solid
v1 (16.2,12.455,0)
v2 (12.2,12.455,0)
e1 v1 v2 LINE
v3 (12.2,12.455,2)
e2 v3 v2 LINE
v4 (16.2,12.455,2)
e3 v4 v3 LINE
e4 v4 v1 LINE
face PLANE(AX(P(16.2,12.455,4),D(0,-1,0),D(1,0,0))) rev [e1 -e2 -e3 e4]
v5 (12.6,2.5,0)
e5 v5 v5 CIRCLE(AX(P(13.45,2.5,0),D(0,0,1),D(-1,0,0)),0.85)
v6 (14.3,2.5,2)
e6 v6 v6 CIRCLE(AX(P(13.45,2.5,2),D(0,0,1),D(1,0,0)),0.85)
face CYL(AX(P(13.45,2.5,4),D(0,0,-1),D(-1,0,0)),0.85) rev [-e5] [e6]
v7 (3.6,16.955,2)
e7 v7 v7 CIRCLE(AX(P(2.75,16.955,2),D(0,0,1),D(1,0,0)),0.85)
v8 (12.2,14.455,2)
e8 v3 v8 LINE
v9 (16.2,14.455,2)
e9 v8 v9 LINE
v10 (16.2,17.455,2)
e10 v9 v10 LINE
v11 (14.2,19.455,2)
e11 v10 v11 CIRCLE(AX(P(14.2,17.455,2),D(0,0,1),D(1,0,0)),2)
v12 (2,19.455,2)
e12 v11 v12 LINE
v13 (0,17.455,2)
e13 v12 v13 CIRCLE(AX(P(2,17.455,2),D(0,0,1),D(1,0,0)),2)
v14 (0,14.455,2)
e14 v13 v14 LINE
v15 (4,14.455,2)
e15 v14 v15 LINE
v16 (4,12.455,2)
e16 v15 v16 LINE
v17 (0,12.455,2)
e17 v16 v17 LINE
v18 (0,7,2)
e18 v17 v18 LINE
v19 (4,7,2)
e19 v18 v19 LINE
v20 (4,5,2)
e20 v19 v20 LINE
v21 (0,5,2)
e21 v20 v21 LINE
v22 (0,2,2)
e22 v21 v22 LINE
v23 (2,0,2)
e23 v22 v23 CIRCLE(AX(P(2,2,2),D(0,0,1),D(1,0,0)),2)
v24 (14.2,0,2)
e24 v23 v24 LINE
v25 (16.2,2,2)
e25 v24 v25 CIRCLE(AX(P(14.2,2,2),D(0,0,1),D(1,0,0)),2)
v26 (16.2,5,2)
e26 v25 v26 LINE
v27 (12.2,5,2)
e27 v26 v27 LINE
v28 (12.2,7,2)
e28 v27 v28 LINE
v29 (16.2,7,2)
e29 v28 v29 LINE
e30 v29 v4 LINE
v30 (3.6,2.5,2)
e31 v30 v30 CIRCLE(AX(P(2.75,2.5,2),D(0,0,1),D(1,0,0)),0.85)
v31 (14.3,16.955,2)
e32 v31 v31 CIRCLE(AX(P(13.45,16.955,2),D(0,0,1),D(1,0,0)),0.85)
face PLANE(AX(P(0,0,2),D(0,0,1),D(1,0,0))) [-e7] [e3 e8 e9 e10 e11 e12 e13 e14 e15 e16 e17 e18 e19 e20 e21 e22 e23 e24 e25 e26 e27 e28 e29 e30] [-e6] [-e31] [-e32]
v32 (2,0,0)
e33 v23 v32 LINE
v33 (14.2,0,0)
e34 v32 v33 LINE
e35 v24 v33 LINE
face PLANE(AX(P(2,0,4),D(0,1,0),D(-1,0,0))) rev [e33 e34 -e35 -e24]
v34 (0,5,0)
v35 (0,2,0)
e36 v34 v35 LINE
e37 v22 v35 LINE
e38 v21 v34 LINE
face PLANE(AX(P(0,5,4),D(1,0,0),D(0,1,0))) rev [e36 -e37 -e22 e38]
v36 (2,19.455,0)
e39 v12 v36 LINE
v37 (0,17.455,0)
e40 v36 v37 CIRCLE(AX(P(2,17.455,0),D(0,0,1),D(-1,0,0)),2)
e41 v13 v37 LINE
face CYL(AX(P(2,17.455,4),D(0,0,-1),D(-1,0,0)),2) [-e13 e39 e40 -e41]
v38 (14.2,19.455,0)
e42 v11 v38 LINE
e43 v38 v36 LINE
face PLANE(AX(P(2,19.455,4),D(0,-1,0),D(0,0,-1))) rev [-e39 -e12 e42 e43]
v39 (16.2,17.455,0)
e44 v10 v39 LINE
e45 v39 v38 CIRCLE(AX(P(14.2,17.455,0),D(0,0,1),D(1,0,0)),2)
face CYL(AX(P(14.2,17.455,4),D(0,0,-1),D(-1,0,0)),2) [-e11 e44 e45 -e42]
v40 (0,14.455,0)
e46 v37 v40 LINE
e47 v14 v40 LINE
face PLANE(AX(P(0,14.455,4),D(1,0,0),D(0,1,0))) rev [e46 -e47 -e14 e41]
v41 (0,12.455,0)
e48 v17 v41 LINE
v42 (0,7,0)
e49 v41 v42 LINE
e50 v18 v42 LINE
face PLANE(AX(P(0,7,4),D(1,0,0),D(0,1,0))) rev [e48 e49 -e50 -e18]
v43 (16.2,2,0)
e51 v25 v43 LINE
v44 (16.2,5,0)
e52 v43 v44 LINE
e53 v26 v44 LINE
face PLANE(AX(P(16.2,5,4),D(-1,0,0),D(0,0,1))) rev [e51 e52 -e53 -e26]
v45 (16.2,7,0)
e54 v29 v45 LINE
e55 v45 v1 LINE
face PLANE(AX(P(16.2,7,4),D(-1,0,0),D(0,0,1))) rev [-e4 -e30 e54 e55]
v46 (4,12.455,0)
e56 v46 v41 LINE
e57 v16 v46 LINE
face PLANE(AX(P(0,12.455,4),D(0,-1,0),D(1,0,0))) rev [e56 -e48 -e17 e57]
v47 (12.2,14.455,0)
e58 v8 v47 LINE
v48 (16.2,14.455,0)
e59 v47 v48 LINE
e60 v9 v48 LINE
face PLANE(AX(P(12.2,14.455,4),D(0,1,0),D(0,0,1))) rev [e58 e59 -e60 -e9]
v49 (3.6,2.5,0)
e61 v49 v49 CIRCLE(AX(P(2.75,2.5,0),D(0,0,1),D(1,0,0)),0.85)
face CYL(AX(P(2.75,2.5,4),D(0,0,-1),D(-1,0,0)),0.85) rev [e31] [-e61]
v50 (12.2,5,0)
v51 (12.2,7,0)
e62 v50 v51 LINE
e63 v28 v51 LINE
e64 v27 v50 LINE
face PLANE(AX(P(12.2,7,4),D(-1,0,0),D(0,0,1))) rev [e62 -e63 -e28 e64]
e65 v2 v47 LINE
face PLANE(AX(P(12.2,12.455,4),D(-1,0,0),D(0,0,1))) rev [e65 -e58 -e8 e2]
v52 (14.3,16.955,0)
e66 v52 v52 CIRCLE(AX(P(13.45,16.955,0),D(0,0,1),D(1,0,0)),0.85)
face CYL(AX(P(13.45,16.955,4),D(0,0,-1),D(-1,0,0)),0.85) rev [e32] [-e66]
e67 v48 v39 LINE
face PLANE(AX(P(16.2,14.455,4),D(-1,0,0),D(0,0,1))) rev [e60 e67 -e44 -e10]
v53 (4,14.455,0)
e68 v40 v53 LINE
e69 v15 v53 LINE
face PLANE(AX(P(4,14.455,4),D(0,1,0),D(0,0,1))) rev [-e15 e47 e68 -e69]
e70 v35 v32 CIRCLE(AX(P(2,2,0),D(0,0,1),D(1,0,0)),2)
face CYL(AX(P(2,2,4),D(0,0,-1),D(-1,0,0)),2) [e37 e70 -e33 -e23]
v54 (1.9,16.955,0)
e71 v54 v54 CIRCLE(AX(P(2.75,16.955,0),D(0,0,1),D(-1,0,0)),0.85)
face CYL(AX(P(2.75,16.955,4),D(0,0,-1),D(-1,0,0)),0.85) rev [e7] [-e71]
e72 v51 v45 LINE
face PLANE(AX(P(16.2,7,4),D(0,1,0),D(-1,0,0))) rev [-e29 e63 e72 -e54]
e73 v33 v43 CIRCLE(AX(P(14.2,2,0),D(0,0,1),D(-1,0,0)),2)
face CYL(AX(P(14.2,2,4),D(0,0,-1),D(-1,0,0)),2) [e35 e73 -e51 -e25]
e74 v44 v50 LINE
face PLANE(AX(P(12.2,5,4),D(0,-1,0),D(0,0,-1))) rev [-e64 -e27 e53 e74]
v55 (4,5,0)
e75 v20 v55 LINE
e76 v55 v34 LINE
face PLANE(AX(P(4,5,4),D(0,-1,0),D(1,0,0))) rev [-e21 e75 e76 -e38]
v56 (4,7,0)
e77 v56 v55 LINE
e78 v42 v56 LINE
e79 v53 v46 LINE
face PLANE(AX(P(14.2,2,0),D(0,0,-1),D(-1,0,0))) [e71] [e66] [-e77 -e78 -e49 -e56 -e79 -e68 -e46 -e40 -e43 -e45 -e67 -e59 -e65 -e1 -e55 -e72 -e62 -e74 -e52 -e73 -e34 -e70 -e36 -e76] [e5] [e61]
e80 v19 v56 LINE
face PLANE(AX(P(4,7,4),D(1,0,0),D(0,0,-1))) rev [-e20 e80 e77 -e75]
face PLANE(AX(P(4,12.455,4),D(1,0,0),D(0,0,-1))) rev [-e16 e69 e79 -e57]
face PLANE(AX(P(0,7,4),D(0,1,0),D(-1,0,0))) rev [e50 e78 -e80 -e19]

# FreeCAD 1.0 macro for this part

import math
import FreeCAD as App
import Part
import Sketcher
from FreeCAD import Vector
Q = App.Units.Quantity

doc = App.newDocument("Part")
body = doc.addObject("PartDesign::Body", "Body")

sketch1 = body.newObject("Sketcher::SketchObject", "Sketch")
sketch1.AttachmentSupport = (doc.getObject("XY_Plane"), [""])
sketch1.MapMode = "FlatFace"
sketch1.addGeometry([
    Part.LineSegment(Vector(0, 12.455, 0), Vector(0, 7, 0)),
    Part.LineSegment(Vector(0, 7, 0), Vector(4, 7, 0)),
    Part.LineSegment(Vector(4, 7, 0), Vector(4, 5, 0)),
    Part.LineSegment(Vector(4, 5, 0), Vector(0, 5, 0)),
    Part.LineSegment(Vector(0, 5, 0), Vector(0, 2, 0)),
    Part.ArcOfCircle(Part.Circle(Vector(2, 2, 0), Vector(0, 0, 1), 2), math.radians(-180), math.radians(-90)),
    Part.LineSegment(Vector(2, 0, 0), Vector(14.2, 0, 0)),
    Part.ArcOfCircle(Part.Circle(Vector(14.2, 2, 0), Vector(0, 0, 1), 2), math.radians(-90), math.radians(0)),
    Part.LineSegment(Vector(16.2, 2, 0), Vector(16.2, 5, 0)),
    Part.LineSegment(Vector(16.2, 5, 0), Vector(12.2, 5, 0)),
    Part.LineSegment(Vector(12.2, 5, 0), Vector(12.2, 7, 0)),
    Part.LineSegment(Vector(12.2, 7, 0), Vector(16.2, 7, 0)),
    Part.LineSegment(Vector(16.2, 7, 0), Vector(16.2, 12.455, 0)),
    Part.LineSegment(Vector(16.2, 12.455, 0), Vector(12.2, 12.455, 0)),
    Part.LineSegment(Vector(12.2, 12.455, 0), Vector(12.2, 14.455, 0)),
    Part.LineSegment(Vector(12.2, 14.455, 0), Vector(16.2, 14.455, 0)),
    Part.LineSegment(Vector(16.2, 14.455, 0), Vector(16.2, 17.455, 0)),
    Part.ArcOfCircle(Part.Circle(Vector(14.2, 17.455, 0), Vector(0, 0, 1), 2), math.radians(0), math.radians(90)),
    Part.LineSegment(Vector(14.2, 19.455, 0), Vector(2, 19.455, 0)),
    Part.ArcOfCircle(Part.Circle(Vector(2, 17.455, 0), Vector(0, 0, 1), 2), math.radians(90), math.radians(180)),
    Part.LineSegment(Vector(0, 17.455, 0), Vector(0, 14.455, 0)),
    Part.LineSegment(Vector(0, 14.455, 0), Vector(4, 14.455, 0)),
    Part.LineSegment(Vector(4, 14.455, 0), Vector(4, 12.455, 0)),
    Part.LineSegment(Vector(4, 12.455, 0), Vector(0, 12.455, 0)),
    Part.Circle(Vector(13.45, 2.5, 0), Vector(0, 0, 1), 0.85),
    Part.Circle(Vector(2.75, 2.5, 0), Vector(0, 0, 1), 0.85),
    Part.Circle(Vector(13.45, 16.955, 0), Vector(0, 0, 1), 0.85),
    Part.Circle(Vector(2.75, 16.955, 0), Vector(0, 0, 1), 0.85),
], False)
sketch1.addConstraint([
    Sketcher.Constraint("Coincident", 0, 2, 1, 1),
    Sketcher.Constraint("Coincident", 1, 2, 2, 1),
    Sketcher.Constraint("Coincident", 2, 2, 3, 1),
    Sketcher.Constraint("Coincident", 3, 2, 4, 1),
    Sketcher.Constraint("Tangent", 4, 2, 5, 1),
    Sketcher.Constraint("Tangent", 5, 2, 6, 1),
    Sketcher.Constraint("Tangent", 6, 2, 7, 1),
    Sketcher.Constraint("Tangent", 7, 2, 8, 1),
    Sketcher.Constraint("Coincident", 8, 2, 9, 1),
    Sketcher.Constraint("Coincident", 9, 2, 10, 1),
    Sketcher.Constraint("Coincident", 10, 2, 11, 1),
    Sketcher.Constraint("Coincident", 11, 2, 12, 1),
    Sketcher.Constraint("Coincident", 12, 2, 13, 1),
    Sketcher.Constraint("Coincident", 13, 2, 14, 1),
    Sketcher.Constraint("Coincident", 14, 2, 15, 1),
    Sketcher.Constraint("Coincident", 15, 2, 16, 1),
    Sketcher.Constraint("Tangent", 16, 2, 17, 1),
    Sketcher.Constraint("Tangent", 17, 2, 18, 1),
    Sketcher.Constraint("Tangent", 18, 2, 19, 1),
    Sketcher.Constraint("Tangent", 19, 2, 20, 1),
    Sketcher.Constraint("Coincident", 20, 2, 21, 1),
    Sketcher.Constraint("Coincident", 21, 2, 22, 1),
    Sketcher.Constraint("Coincident", 22, 2, 23, 1),
    Sketcher.Constraint("Coincident", 23, 2, 0, 1),
    Sketcher.Constraint("Vertical", 0),
    Sketcher.Constraint("Horizontal", 1),
    Sketcher.Constraint("Vertical", 2),
    Sketcher.Constraint("Horizontal", 3),
    Sketcher.Constraint("Vertical", 4),
    Sketcher.Constraint("Horizontal", 6),
    Sketcher.Constraint("Vertical", 8),
    Sketcher.Constraint("Horizontal", 9),
    Sketcher.Constraint("Vertical", 10),
    Sketcher.Constraint("Horizontal", 11),
    Sketcher.Constraint("Vertical", 12),
    Sketcher.Constraint("Horizontal", 13),
    Sketcher.Constraint("Vertical", 14),
    Sketcher.Constraint("Horizontal", 15),
    Sketcher.Constraint("Vertical", 16),
    Sketcher.Constraint("Horizontal", 18),
    Sketcher.Constraint("Vertical", 20),
    Sketcher.Constraint("Horizontal", 21),
    Sketcher.Constraint("Vertical", 22),
    Sketcher.Constraint("Horizontal", 23),
    Sketcher.Constraint("Equal", 5, 7),
    Sketcher.Constraint("Equal", 7, 17),
    Sketcher.Constraint("Equal", 17, 19),
    Sketcher.Constraint("Equal", 24, 25),
    Sketcher.Constraint("Equal", 25, 26),
    Sketcher.Constraint("Equal", 26, 27),
    Sketcher.Constraint("PointOnObject", 0, 2, -2),
    Sketcher.Constraint("PointOnObject", 3, 2, -2),
    Sketcher.Constraint("PointOnObject", 5, 2, -1),
    Sketcher.Constraint("PointOnObject", 19, 2, -2),
    Sketcher.Constraint("Horizontal", 24, 3, 25, 3),
    Sketcher.Constraint("Horizontal", 26, 3, 27, 3),
    Sketcher.Constraint("Horizontal", 3, 2, 8, 2),
    Sketcher.Constraint("Horizontal", 1, 2, 10, 2),
    Sketcher.Constraint("Horizontal", 15, 2, 20, 2),
    Sketcher.Constraint("Horizontal", 13, 2, 22, 2),
    Sketcher.Constraint("Vertical", 7, 3, 17, 3),
    Sketcher.Constraint("Vertical", 24, 3, 26, 3),
    Sketcher.Constraint("Vertical", 25, 3, 27, 3),
    Sketcher.Constraint("Vertical", 8, 2, 11, 2),
    Sketcher.Constraint("Vertical", 10, 2, 13, 2),
    Sketcher.Constraint("Vertical", 2, 2, 21, 2),
    Sketcher.Constraint("Equal", 3, 9),
    Sketcher.Constraint("Equal", 10, 14),
    Sketcher.Constraint("Equal", 8, 16),
    Sketcher.Constraint("Radius", 5, Q("2 mm")),
    Sketcher.Constraint("Diameter", 24, Q("1.7 mm")),
    Sketcher.Constraint("DistanceX", 1, 1, 1, 2, Q("4 mm")),
    Sketcher.Constraint("DistanceY", 2, 2, 2, 1, Q("2 mm")),
    Sketcher.Constraint("DistanceY", 4, 2, 4, 1, Q("3 mm")),
    Sketcher.Constraint("DistanceX", 6, 1, 6, 2, Q("12.2 mm")),
    Sketcher.Constraint("DistanceY", -1, 1, 24, 3, Q("2.5 mm")),
    Sketcher.Constraint("DistanceX", 25, 3, 24, 3, Q("10.7 mm")),
    Sketcher.Constraint("DistanceY", 26, 3, 17, 3, Q("0.5 mm")),
    Sketcher.Constraint("DistanceY", 0, 2, 0, 1, Q("5.455 mm")),
    Sketcher.Constraint("DistanceX", -1, 1, 24, 3, Q("13.45 mm")),
])
pad1 = body.newObject("PartDesign::Pad", "Pad")
pad1.Profile = sketch1
pad1.Length = 4

sketch2 = body.newObject("Sketcher::SketchObject", "Sketch001")
sketch2.AttachmentSupport = (doc.getObject("XY_Plane"), [""])
sketch2.MapMode = "FlatFace"
sketch2.AttachmentOffset = App.Placement(Vector(0, 0, 4), App.Rotation())
sketch2.addGeometry([
    Part.LineSegment(Vector(0, 19.455, 0), Vector(0, 0, 0)),
    Part.LineSegment(Vector(0, 0, 0), Vector(16.2, 0, 0)),
    Part.LineSegment(Vector(16.2, 0, 0), Vector(16.2, 19.455, 0)),
    Part.LineSegment(Vector(16.2, 19.455, 0), Vector(0, 19.455, 0)),
], False)
sketch2.addConstraint([
    Sketcher.Constraint("Coincident", 0, 2, 1, 1),
    Sketcher.Constraint("Coincident", 1, 2, 2, 1),
    Sketcher.Constraint("Coincident", 2, 2, 3, 1),
    Sketcher.Constraint("Coincident", 3, 2, 0, 1),
    Sketcher.Constraint("Vertical", 0),
    Sketcher.Constraint("Horizontal", 1),
    Sketcher.Constraint("Vertical", 2),
    Sketcher.Constraint("Horizontal", 3),
    Sketcher.Constraint("Coincident", 0, 2, -1, 1),
    Sketcher.Constraint("DistanceX", 1, 1, 1, 2, Q("16.2 mm")),
    Sketcher.Constraint("DistanceY", 0, 2, 0, 1, Q("19.455 mm")),
])
pocket1 = body.newObject("PartDesign::Pocket", "Pocket")
pocket1.Profile = sketch2
pocket1.Length = 2

doc.recompute()
